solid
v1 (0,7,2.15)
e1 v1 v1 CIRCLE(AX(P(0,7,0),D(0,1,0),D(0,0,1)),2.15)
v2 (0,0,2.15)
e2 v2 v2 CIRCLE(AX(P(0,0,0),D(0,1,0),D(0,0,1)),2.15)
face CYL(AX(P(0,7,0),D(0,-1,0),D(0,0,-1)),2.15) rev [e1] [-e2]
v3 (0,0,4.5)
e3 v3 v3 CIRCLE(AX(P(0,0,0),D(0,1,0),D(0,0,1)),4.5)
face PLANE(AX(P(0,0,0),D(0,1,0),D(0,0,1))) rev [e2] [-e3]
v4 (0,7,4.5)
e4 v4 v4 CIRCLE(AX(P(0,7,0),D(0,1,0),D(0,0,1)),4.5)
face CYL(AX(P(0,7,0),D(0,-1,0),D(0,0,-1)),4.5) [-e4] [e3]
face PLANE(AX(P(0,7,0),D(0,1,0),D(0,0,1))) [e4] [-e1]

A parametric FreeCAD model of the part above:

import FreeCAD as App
import Part
import Sketcher

V = App.Vector
Q = App.Units.Quantity

doc = App.newDocument("Part")
params = doc.addObject("Spreadsheet::Sheet", "Params")
for row, (alias, value) in enumerate([
    ("sketch1_diameter", "9 mm"),
    ("sketch1_diameter2", "4.3 mm"),
    ("pad1_length", "7 mm"),
], start=1):
    params.set(f"A{row}", alias)
    params.set(f"B{row}", "=" + value)
    params.setAlias(f"B{row}", alias)

body = doc.addObject("PartDesign::Body", "Body")

# Sketch on XZ plane
sketch1 = body.newObject("Sketcher::SketchObject", "Sketch")
sketch1.AttachmentSupport = (doc.getObject("XZ_Plane"), [""])
sketch1.MapMode = "FlatFace"
sketch1.addGeometry([
    Part.Circle(V(0, 0, 0), V(0, 0, 1), 4.5),
    Part.Circle(V(0, 0, 0), V(0, 0, 1), 2.1),
], False)
sketch1.addConstraint([
    Sketcher.Constraint("Coincident", 0, 3, -1, 1),
    Sketcher.Constraint("Coincident", 1, 3, -1, 1),
    Sketcher.Constraint("Diameter", 0, Q("9 mm")),
    Sketcher.Constraint("Diameter", 1, Q("4.3 mm")),
])
sketch1.setExpression("Constraints[2]", "Params.sketch1_diameter")
sketch1.setExpression("Constraints[3]", "Params.sketch1_diameter2")
pad1 = body.newObject("PartDesign::Pad", "Pad")
pad1.Profile = sketch1
pad1.setExpression("Length", "Params.pad1_length")
pad1.Reversed = True

doc.recompute()
